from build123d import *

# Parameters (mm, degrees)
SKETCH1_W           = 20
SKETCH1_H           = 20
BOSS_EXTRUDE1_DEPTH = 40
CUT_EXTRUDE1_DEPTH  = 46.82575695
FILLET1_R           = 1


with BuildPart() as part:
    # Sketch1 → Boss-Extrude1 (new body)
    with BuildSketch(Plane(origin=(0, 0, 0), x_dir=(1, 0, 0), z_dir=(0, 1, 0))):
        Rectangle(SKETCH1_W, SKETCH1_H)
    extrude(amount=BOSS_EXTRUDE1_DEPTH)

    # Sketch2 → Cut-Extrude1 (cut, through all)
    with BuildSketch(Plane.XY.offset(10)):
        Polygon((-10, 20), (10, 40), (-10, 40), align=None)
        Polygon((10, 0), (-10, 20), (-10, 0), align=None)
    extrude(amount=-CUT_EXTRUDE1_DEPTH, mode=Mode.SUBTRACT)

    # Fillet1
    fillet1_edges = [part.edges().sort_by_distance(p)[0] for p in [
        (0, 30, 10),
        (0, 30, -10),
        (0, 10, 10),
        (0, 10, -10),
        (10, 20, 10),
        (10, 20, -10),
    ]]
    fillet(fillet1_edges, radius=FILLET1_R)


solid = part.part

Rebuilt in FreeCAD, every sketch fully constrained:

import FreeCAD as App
import Part
import Sketcher
Q = App.Units.Quantity


def edges_at(feature, points):
    """Names of the edges that pass closest to the given points."""
    edges = feature.Shape.Edges
    near = lambda p: min(range(len(edges)), key=lambda i: edges[i].distToShape(Part.Vertex(*p))[0])
    return sorted({f"Edge{near(p) + 1}" for p in points})


def add_polygon(sketch, points):
    """Adds a closed chain of lines whose ends are joined by coincident constraints."""
    first, n = sketch.GeometryCount, len(points)
    for a, b in zip(points, points[1:] + points[:1]):
        sketch.addGeometry(Part.LineSegment(App.Vector(*a, 0), App.Vector(*b, 0)), False)
    for i in range(n):
        sketch.addConstraint(Sketcher.Constraint("Coincident", first + i, 2, first + (i + 1) % n, 1))

doc = App.newDocument("Part")
body = doc.addObject("PartDesign::Body", "Body")

# Sketch on XZ plane
sketch1 = body.newObject("Sketcher::SketchObject", "Sketch")
sketch1.AttachmentSupport = (doc.getObject("XZ_Plane"), [""])
sketch1.MapMode = "FlatFace"
add_polygon(sketch1, [(-10, -10), (-10, 10), (10, 10), (10, -10)])  # lines 0-3
sketch1.addConstraint([
    Sketcher.Constraint("Vertical", 0),
    Sketcher.Constraint("Horizontal", 1),
    Sketcher.Constraint("Vertical", 2),
    Sketcher.Constraint("Horizontal", 3),
    Sketcher.Constraint("Symmetric", 0, 2, 2, 2, -1, 1),
    Sketcher.Constraint("Equal", 3, 0),
    Sketcher.Constraint("DistanceX", 1, 1, 1, 2, Q("20 mm")),
])
pad1 = body.newObject("PartDesign::Pad", "Pad")
pad1.Profile = sketch1
pad1.Length = 40
pad1.Reversed = True

# Sketch on XY plane
sketch2 = body.newObject("Sketcher::SketchObject", "Sketch001")
sketch2.AttachmentSupport = (doc.getObject("XY_Plane"), [""])
sketch2.MapMode = "FlatFace"
sketch2.AttachmentOffset = App.Placement(App.Vector(0, 0, 10), App.Rotation())
add_polygon(sketch2, [(-10, 20), (10, 40), (-10, 40)])  # lines 0-2
add_polygon(sketch2, [(10, 0), (-10, 20), (-10, 0)])  # lines 3-5
sketch2.addConstraint([
    Sketcher.Constraint("Horizontal", 1),
    Sketcher.Constraint("Vertical", 2),
    Sketcher.Constraint("Vertical", 4),
    Sketcher.Constraint("Horizontal", 5),
    Sketcher.Constraint("Coincident", 3, 2, 2, 2),
    Sketcher.Constraint("Symmetric", 4, 2, 5, 2, -1, 1),
    Sketcher.Constraint("Perpendicular", 0, 3),
    Sketcher.Constraint("Vertical", 0, 2, 5, 2),
    Sketcher.Constraint("Equal", 5, 2),
    Sketcher.Constraint("DistanceX", 1, 2, 1, 1, Q("20 mm")),
])
pocket1 = body.newObject("PartDesign::Pocket", "Pocket")
pocket1.Profile = sketch2
pocket1.Type = "ThroughAll"
doc.recompute()

fillet = body.newObject("PartDesign::Fillet", "Fillet")
fillet.Base = (pocket1, edges_at(pocket1, [
    (0, 30, 10),
    (0, 30, -10),
    (0, 10, 10),
    (0, 10, -10),
    (10, 20, 10),
    (10, 20, -10),
]))
fillet.Radius = 1

doc.recompute()
